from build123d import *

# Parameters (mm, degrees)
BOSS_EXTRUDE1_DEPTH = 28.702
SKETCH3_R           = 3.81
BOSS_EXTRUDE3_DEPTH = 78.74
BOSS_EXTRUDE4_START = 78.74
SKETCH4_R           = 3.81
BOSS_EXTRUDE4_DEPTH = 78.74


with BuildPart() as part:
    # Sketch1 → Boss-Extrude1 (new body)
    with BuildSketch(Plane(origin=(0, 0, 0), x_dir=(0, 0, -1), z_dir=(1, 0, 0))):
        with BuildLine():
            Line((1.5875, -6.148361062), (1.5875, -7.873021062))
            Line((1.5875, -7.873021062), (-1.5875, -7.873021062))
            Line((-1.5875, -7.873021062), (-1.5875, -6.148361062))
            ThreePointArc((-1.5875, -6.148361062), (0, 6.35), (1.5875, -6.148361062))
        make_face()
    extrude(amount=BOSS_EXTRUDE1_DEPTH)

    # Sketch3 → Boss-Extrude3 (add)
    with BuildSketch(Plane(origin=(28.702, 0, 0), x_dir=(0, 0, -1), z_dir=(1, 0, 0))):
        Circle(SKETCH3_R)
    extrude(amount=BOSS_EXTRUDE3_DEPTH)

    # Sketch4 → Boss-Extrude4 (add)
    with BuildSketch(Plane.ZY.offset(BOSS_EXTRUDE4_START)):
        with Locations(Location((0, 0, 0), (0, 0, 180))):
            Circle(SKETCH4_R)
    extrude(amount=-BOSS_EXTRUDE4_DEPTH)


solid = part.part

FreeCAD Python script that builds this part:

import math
import FreeCAD as App
import Part
import Sketcher
from FreeCAD import Vector
Q = App.Units.Quantity

doc = App.newDocument("Part")
body = doc.addObject("PartDesign::Body", "Body")

# Sketch on YZ plane
sketch1 = body.newObject("Sketcher::SketchObject", "Sketch")
sketch1.AttachmentSupport = (doc.getObject("YZ_Plane"), [""])
sketch1.MapMode = "FlatFace"
sketch1.addGeometry([
    Part.LineSegment(Vector(-7.9, -1.6, 0), Vector(-6.1, -1.6, 0)),
    Part.ArcOfCircle(Part.Circle(Vector(0, 0, 0), Vector(0, 0, 1), 6.3), math.radians(-166), math.radians(166)),
    Part.LineSegment(Vector(-6.1, 1.6, 0), Vector(-7.9, 1.6, 0)),
    Part.LineSegment(Vector(-7.9, 1.6, 0), Vector(-7.9, -1.6, 0)),
], False)
sketch1.addConstraint([
    Sketcher.Constraint("Coincident", 0, 2, 1, 1),
    Sketcher.Constraint("Coincident", 1, 2, 2, 1),
    Sketcher.Constraint("Coincident", 2, 2, 3, 1),
    Sketcher.Constraint("Coincident", 3, 2, 0, 1),
    Sketcher.Constraint("Horizontal", 0),
    Sketcher.Constraint("Horizontal", 2),
    Sketcher.Constraint("Vertical", 3),
    Sketcher.Constraint("Coincident", 1, 3, -1, 1),
    Sketcher.Constraint("Vertical", 0, 2, 1, 2),
    Sketcher.Constraint("Radius", 1, Q("0.25 in")),
    Sketcher.Constraint("DistanceY", 3, 2, 3, 1, Q("0.125 in")),
    Sketcher.Constraint("DistanceX", 0, 1, 0, 2, Q("0.0679 in")),
])
pad1 = body.newObject("PartDesign::Pad", "Pad")
pad1.Profile = sketch1
pad1.Length = Q("1.13 in")

# Sketch on YZ plane
sketch2 = body.newObject("Sketcher::SketchObject", "Sketch001")
sketch2.AttachmentSupport = (doc.getObject("YZ_Plane"), [""])
sketch2.MapMode = "FlatFace"
sketch2.AttachmentOffset = App.Placement(Vector(0, 0, 1.13 * 25.4), App.Rotation())
sketch2.addGeometry(Part.Circle(Vector(0, 0, 0), Vector(0, 0, 1), 3.8), False)
sketch2.addConstraint([
    Sketcher.Constraint("Coincident", 0, 3, -1, 1),
    Sketcher.Constraint("Diameter", 0, Q("0.3 in")),
])
pad2 = body.newObject("PartDesign::Pad", "Pad001")
pad2.Profile = sketch2
pad2.Length = Q("3.1 in")

# Sketch on YZ plane
sketch3 = body.newObject("Sketcher::SketchObject", "Sketch002")
sketch3.AttachmentSupport = (doc.getObject("YZ_Plane"), [""])
sketch3.MapMode = "FlatFace"
sketch3.AttachmentOffset = App.Placement(Vector(0, 0, -3.1 * 25.4), App.Rotation())
sketch3.addGeometry(Part.Circle(Vector(0, 0, 0), Vector(0, 0, 1), 3.8), False)
sketch3.addConstraint([
    Sketcher.Constraint("Coincident", 0, 3, -1, 1),
    Sketcher.Constraint("Diameter", 0, Q("0.3 in")),
])
pad3 = body.newObject("PartDesign::Pad", "Pad002")
pad3.Profile = sketch3
pad3.Length = Q("3.1 in")

doc.recompute()
